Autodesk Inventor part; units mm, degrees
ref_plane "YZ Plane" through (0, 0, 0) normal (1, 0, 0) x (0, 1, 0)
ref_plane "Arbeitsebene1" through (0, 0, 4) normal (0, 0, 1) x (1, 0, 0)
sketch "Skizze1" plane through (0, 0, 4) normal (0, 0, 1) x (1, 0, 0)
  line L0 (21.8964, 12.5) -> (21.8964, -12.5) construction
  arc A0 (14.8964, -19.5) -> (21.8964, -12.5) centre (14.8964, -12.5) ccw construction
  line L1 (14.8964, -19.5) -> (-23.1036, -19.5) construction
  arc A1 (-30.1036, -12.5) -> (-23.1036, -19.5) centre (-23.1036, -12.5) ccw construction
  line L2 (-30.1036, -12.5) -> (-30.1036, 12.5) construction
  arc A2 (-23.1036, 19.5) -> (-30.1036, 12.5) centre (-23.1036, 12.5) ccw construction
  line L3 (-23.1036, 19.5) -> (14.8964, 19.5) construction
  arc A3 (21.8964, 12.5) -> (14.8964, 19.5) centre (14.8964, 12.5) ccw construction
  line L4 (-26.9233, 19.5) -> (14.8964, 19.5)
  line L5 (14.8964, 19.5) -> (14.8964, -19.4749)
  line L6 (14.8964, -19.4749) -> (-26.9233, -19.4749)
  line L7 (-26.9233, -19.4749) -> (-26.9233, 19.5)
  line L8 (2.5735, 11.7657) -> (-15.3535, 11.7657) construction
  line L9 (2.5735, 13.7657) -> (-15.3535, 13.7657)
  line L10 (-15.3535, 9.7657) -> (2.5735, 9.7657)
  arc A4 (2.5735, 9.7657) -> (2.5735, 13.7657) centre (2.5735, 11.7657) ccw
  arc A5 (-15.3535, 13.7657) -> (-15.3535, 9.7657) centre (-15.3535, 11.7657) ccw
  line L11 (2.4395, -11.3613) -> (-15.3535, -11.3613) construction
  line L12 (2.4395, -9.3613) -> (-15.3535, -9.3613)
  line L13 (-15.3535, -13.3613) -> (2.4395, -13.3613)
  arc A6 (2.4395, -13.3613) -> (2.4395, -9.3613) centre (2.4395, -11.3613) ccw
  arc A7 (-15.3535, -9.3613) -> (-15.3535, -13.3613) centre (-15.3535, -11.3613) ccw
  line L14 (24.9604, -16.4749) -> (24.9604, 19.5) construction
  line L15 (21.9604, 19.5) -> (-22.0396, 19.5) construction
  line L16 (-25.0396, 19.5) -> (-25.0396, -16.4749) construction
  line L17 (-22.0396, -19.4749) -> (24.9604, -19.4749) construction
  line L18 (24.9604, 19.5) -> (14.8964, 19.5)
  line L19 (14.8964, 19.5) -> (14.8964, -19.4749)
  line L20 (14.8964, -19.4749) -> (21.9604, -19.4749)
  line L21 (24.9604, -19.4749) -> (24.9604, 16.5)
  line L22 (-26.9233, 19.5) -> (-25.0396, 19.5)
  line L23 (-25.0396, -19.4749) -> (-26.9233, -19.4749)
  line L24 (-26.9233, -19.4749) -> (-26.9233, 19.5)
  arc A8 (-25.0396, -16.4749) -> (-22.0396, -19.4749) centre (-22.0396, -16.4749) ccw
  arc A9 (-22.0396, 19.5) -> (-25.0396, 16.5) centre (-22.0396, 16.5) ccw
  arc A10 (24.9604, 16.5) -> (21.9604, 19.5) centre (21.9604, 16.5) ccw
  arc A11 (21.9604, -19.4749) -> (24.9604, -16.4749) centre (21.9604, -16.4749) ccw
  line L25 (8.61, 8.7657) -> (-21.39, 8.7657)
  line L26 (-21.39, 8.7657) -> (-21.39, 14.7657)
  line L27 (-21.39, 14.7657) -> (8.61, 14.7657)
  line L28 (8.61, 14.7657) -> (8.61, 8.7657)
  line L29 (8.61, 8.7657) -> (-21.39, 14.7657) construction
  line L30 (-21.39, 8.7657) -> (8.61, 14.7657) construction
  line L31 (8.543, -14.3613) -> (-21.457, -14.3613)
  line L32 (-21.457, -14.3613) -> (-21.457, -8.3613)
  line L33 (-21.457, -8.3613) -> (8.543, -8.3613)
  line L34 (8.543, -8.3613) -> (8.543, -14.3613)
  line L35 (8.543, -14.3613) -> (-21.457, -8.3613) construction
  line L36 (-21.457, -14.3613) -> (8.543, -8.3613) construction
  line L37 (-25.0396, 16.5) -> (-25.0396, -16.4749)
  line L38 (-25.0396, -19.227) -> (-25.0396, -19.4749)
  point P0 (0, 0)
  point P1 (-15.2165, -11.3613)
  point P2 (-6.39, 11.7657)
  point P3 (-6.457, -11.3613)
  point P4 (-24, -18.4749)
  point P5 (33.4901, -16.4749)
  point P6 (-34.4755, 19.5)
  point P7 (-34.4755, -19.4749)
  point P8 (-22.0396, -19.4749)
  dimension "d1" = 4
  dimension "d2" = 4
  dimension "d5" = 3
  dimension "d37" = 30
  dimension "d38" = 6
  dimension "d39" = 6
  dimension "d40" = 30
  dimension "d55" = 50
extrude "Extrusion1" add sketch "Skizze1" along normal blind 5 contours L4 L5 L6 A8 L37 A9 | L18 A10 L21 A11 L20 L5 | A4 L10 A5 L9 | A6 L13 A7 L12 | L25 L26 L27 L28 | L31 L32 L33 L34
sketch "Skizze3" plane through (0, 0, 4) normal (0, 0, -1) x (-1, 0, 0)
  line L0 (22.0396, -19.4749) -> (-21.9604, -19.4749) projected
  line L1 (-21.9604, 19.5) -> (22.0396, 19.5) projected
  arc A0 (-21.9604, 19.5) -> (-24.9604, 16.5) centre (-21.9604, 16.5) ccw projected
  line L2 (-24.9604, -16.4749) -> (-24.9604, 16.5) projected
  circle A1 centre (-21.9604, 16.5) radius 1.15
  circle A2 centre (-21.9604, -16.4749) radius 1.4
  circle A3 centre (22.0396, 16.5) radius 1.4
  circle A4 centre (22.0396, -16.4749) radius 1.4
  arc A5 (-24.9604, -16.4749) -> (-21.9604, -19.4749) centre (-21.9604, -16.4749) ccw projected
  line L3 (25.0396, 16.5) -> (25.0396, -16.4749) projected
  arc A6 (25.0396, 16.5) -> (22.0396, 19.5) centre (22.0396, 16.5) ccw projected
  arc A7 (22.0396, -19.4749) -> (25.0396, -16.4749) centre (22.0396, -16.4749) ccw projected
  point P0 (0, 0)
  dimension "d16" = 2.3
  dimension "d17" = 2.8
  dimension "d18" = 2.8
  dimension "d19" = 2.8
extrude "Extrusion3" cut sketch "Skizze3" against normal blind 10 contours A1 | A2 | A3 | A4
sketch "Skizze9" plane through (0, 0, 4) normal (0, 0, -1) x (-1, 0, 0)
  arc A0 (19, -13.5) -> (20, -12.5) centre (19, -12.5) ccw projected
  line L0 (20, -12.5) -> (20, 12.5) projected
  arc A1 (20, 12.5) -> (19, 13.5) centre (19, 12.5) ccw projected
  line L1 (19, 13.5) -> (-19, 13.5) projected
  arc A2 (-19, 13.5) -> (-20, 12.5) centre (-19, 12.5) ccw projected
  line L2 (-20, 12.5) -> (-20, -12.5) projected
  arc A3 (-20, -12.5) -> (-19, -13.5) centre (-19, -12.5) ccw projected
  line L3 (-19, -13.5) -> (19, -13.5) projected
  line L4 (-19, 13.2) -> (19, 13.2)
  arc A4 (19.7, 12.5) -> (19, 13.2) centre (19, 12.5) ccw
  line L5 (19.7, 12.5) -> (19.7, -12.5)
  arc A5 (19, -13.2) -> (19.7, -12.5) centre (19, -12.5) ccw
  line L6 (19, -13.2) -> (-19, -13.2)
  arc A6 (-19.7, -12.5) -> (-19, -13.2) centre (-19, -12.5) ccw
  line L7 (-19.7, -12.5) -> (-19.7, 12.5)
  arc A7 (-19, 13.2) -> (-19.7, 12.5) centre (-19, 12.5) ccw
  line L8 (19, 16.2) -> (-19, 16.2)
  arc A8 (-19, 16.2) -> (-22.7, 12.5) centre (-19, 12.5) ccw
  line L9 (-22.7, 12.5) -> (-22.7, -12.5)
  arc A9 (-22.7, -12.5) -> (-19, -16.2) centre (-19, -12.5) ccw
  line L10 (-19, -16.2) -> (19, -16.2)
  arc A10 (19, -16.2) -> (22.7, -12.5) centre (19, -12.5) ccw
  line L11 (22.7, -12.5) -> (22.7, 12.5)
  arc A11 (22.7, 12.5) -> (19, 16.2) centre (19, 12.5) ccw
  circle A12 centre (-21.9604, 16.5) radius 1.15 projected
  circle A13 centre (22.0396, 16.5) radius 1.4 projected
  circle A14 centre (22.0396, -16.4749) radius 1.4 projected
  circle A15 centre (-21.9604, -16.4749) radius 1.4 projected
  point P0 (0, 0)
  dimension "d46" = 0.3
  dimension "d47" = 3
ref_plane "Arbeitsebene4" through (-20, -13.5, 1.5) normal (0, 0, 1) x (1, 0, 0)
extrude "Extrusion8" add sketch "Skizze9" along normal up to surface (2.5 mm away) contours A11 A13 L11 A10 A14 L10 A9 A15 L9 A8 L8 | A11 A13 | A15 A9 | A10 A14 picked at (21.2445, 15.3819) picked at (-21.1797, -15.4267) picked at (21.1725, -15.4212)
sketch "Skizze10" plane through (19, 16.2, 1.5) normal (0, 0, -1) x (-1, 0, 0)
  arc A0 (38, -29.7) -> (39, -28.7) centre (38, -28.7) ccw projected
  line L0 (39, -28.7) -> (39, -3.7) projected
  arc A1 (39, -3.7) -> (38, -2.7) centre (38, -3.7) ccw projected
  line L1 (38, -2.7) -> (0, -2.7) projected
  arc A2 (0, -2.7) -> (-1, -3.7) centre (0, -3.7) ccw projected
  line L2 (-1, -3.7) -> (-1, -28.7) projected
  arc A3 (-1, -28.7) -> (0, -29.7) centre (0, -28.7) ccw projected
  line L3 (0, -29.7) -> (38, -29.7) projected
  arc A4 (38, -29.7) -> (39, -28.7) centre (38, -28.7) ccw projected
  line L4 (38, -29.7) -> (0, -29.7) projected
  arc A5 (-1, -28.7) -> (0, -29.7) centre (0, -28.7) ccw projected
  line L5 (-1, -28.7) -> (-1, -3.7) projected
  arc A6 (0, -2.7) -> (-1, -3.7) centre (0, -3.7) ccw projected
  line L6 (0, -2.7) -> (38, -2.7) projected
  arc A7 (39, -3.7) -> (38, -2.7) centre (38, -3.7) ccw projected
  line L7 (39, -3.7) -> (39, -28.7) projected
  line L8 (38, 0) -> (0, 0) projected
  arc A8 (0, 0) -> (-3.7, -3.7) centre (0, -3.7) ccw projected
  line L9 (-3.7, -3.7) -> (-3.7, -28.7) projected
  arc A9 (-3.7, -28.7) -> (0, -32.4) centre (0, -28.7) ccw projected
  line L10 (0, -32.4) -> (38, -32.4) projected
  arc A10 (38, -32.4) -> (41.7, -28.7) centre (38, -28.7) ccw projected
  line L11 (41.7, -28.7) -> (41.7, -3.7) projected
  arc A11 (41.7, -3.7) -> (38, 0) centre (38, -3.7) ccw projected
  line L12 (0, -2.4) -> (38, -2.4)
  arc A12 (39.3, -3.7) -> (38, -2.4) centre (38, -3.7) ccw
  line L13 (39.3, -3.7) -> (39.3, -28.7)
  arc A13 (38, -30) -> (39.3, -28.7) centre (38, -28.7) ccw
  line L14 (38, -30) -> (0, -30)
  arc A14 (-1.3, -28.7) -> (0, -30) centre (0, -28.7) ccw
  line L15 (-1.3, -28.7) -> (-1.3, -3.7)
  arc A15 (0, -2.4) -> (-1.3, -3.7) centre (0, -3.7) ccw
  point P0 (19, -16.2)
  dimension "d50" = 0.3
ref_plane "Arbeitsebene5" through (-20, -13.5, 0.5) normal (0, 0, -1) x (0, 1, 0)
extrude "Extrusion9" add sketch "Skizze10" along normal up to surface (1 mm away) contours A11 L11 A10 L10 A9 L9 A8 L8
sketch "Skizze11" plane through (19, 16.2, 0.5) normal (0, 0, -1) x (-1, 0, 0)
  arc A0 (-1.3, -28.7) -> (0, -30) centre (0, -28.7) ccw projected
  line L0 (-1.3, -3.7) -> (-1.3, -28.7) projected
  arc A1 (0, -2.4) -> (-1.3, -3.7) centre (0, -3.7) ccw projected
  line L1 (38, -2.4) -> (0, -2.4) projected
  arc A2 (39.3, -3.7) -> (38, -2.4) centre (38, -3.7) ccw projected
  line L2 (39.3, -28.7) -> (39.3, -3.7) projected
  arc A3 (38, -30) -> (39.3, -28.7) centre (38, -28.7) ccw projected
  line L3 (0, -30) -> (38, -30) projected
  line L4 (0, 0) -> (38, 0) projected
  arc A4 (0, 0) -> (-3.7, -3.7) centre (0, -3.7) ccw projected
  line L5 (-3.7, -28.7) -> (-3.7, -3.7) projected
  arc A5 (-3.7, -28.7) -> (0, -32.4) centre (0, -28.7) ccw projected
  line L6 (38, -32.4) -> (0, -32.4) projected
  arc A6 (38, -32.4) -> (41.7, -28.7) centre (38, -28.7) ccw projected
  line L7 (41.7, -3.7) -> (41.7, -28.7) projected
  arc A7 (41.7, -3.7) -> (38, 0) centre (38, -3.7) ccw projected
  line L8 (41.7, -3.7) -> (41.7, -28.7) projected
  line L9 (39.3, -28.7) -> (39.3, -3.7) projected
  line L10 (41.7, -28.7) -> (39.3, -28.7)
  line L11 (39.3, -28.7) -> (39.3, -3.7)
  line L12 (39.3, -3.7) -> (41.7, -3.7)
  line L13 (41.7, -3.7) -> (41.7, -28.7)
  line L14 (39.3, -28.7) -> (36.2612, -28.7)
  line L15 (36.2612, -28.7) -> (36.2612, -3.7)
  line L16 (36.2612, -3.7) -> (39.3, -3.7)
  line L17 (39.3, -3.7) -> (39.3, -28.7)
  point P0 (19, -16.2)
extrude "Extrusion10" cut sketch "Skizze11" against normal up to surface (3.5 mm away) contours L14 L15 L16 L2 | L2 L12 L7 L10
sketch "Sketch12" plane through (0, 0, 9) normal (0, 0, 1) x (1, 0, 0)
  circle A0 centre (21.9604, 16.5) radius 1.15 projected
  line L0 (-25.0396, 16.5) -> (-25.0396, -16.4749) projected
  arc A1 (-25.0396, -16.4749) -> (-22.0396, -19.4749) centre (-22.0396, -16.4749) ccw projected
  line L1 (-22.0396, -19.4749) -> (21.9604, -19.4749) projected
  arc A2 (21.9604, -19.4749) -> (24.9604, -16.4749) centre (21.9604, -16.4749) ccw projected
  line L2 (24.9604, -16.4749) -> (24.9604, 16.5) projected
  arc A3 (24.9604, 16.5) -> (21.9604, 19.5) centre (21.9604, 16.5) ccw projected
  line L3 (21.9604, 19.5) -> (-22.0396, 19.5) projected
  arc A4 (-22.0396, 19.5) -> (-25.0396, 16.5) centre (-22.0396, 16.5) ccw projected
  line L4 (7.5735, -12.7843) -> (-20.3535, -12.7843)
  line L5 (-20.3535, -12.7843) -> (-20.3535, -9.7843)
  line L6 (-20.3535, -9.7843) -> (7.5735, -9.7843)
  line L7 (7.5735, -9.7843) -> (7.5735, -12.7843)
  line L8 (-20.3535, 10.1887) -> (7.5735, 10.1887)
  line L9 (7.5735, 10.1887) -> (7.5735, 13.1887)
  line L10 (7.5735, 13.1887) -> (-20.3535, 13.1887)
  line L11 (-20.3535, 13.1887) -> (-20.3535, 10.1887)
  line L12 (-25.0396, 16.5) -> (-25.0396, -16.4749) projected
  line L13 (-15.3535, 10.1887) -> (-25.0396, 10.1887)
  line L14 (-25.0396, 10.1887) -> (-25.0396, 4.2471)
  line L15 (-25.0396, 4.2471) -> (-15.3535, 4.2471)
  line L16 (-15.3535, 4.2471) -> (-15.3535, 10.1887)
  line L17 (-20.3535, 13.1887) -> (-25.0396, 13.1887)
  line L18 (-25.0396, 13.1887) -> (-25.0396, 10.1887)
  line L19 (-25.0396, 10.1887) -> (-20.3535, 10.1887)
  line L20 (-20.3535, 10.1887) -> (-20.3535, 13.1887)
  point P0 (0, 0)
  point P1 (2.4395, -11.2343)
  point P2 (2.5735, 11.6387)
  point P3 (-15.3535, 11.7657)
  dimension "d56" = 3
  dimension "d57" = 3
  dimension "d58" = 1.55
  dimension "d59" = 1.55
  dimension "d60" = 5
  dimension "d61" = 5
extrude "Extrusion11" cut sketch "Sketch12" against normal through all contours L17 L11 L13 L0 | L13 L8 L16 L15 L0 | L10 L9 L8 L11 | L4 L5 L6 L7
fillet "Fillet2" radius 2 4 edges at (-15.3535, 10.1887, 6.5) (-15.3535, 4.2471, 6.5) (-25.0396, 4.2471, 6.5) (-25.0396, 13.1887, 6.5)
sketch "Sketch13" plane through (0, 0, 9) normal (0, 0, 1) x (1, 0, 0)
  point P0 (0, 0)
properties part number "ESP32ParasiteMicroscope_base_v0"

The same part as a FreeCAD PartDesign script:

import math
import FreeCAD as App
import Part
import Sketcher
Q = App.Units.Quantity


def edges_at(feature, points):
    """Names of the edges that pass closest to the given points."""
    edges = feature.Shape.Edges
    near = lambda p: min(range(len(edges)), key=lambda i: edges[i].distToShape(Part.Vertex(*p))[0])
    return sorted({f"Edge{near(p) + 1}" for p in points})

doc = App.newDocument("Part")
params = doc.addObject("Spreadsheet::Sheet", "Params")
for row, (alias, value) in enumerate([
    ("sketch1_radius", "3 mm"),
    ("sketch1_width", "44 mm"),
    ("pad1_length", "5 mm"),
    ("sketch2_diameter", "2.3 mm"),
    ("sketch2_diameter2", "2.8 mm"),
    ("pocket1_length", "10 mm"),
    ("sketch3_radius", "1 mm"),
    ("sketch3_radius2", "3.7 mm"),
    ("sketch3_width", "38 mm"),
    ("sketch3_height", "25 mm"),
    ("pad2_length", "2.5 mm"),
    ("sketch4_radius", "3.7 mm"),
    ("sketch4_radius2", "1.3 mm"),
    ("sketch4_width", "38 mm"),
    ("sketch4_height", "25 mm"),
    ("pad3_length", "1 mm"),
    ("sketch5_height", "25 mm"),
    ("pocket2_length", "3.5 mm"),
    ("sketch6_height", "3 mm"),
    ("fillet_radius", "2 mm"),
], start=1):
    params.set(f"A{row}", alias)
    params.set(f"B{row}", "=" + value)
    params.setAlias(f"B{row}", alias)

body = doc.addObject("PartDesign::Body", "Body")

# Sketch on XY plane
sketch1 = body.newObject("Sketcher::SketchObject", "Sketch")
sketch1.AttachmentSupport = (doc.getObject("XY_Plane"), [""])
sketch1.MapMode = "FlatFace"
sketch1.AttachmentOffset = App.Placement(App.Vector(0, 0, 4), App.Rotation())
sketch1.addGeometry(Part.ArcOfCircle(Part.Circle(App.Vector(-22, 16.5, 0), App.Vector(0, 0, 1), 3), math.radians(90), math.radians(180)), False)
sketch1.addGeometry(Part.LineSegment(App.Vector(-25, 16.5, 0), App.Vector(-25, -16.5, 0)), False)
sketch1.addGeometry(Part.ArcOfCircle(Part.Circle(App.Vector(-22, -16.5, 0), App.Vector(0, 0, 1), 3), math.radians(180), math.radians(270)), False)
sketch1.addGeometry(Part.LineSegment(App.Vector(-22, -19.5, 0), App.Vector(22, -19.5, 0)), False)
sketch1.addGeometry(Part.ArcOfCircle(Part.Circle(App.Vector(22, -16.5, 0), App.Vector(0, 0, 1), 3), math.radians(-90), math.radians(0)), False)
sketch1.addGeometry(Part.LineSegment(App.Vector(25, -16.5, 0), App.Vector(25, 16.5, 0)), False)
sketch1.addGeometry(Part.ArcOfCircle(Part.Circle(App.Vector(22, 16.5, 0), App.Vector(0, 0, 1), 3), math.radians(0), math.radians(90)), False)
sketch1.addGeometry(Part.LineSegment(App.Vector(22, 19.5, 0), App.Vector(-22, 19.5, 0)), False)
sketch1.addConstraint(Sketcher.Constraint("Tangent", 0, 2, 1, 1))
sketch1.addConstraint(Sketcher.Constraint("Tangent", 1, 2, 2, 1))
sketch1.addConstraint(Sketcher.Constraint("Tangent", 2, 2, 3, 1))
sketch1.addConstraint(Sketcher.Constraint("Tangent", 3, 2, 4, 1))
sketch1.addConstraint(Sketcher.Constraint("Tangent", 4, 2, 5, 1))
sketch1.addConstraint(Sketcher.Constraint("Tangent", 5, 2, 6, 1))
sketch1.addConstraint(Sketcher.Constraint("Tangent", 6, 2, 7, 1))
sketch1.addConstraint(Sketcher.Constraint("Tangent", 7, 2, 0, 1))
sketch1.addConstraint(Sketcher.Constraint("Vertical", 1))
sketch1.addConstraint(Sketcher.Constraint("Horizontal", 3))
sketch1.addConstraint(Sketcher.Constraint("Vertical", 5))
sketch1.addConstraint(Sketcher.Constraint("Horizontal", 7))
sketch1.addConstraint(Sketcher.Constraint("Equal", 0, 2))
sketch1.addConstraint(Sketcher.Constraint("Equal", 2, 4))
sketch1.addConstraint(Sketcher.Constraint("Equal", 4, 6))
sketch1.addConstraint(Sketcher.Constraint("Radius", 0, Q("3 mm")))
sketch1.addConstraint(Sketcher.Constraint("DistanceX", 3, 1, 3, 2, Q("44 mm")))
sketch1.addConstraint(Sketcher.Constraint("DistanceY", -1, 1, 0, 3, Q("16.5 mm")))
sketch1.addConstraint(Sketcher.Constraint("DistanceY", 1, 2, 1, 1, Q("32.975 mm")))
sketch1.addConstraint(Sketcher.Constraint("DistanceX", 0, 3, -1, 1, Q("22.0396 mm")))
sketch1.setExpression("Constraints[15]", "Params.sketch1_radius")
sketch1.setExpression("Constraints[16]", "Params.sketch1_width")
pad1 = body.newObject("PartDesign::Pad", "Pad")
pad1.Profile = sketch1
pad1.setExpression("Length", "Params.pad1_length")

# Sketch on XY plane
sketch2 = body.newObject("Sketcher::SketchObject", "Sketch001")
sketch2.AttachmentSupport = (doc.getObject("XY_Plane"), [""])
sketch2.MapMode = "FlatFace"
sketch2.AttachmentOffset = App.Placement(App.Vector(0, 0, 4), App.Rotation())
sketch2.addGeometry(Part.Circle(App.Vector(22, 16.5, 0), App.Vector(0, 0, 1), 1.1), False)
sketch2.addGeometry(Part.Circle(App.Vector(22, -16.5, 0), App.Vector(0, 0, 1), 1.4), False)
sketch2.addGeometry(Part.Circle(App.Vector(-22, 16.5, 0), App.Vector(0, 0, 1), 1.4), False)
sketch2.addGeometry(Part.Circle(App.Vector(-22, -16.5, 0), App.Vector(0, 0, 1), 1.4), False)
sketch2.addConstraint(Sketcher.Constraint("Equal", 1, 2))
sketch2.addConstraint(Sketcher.Constraint("Equal", 2, 3))
sketch2.addConstraint(Sketcher.Constraint("Horizontal", 0, 3, 2, 3))
sketch2.addConstraint(Sketcher.Constraint("Horizontal", 1, 3, 3, 3))
sketch2.addConstraint(Sketcher.Constraint("Vertical", 0, 3, 1, 3))
sketch2.addConstraint(Sketcher.Constraint("Vertical", 2, 3, 3, 3))
sketch2.addConstraint(Sketcher.Constraint("Diameter", 0, Q("2.3 mm")))
sketch2.addConstraint(Sketcher.Constraint("Diameter", 1, Q("2.8 mm")))
sketch2.addConstraint(Sketcher.Constraint("DistanceX", 2, 3, 0, 3, Q("44 mm")))
sketch2.addConstraint(Sketcher.Constraint("DistanceY", -1, 1, 0, 3, Q("16.5 mm")))
sketch2.addConstraint(Sketcher.Constraint("DistanceY", 1, 3, -1, 1, Q("16.475 mm")))
sketch2.addConstraint(Sketcher.Constraint("DistanceX", -1, 1, 0, 3, Q("21.9604 mm")))
sketch2.setExpression("Constraints[6]", "Params.sketch2_diameter")
sketch2.setExpression("Constraints[7]", "Params.sketch2_diameter2")
pocket1 = body.newObject("PartDesign::Pocket", "Pocket")
pocket1.Profile = sketch2
pocket1.setExpression("Length", "Params.pocket1_length")
pocket1.Reversed = True

# Sketch on XY plane
sketch3 = body.newObject("Sketcher::SketchObject", "Sketch002")
sketch3.AttachmentSupport = (doc.getObject("XY_Plane"), [""])
sketch3.MapMode = "FlatFace"
sketch3.AttachmentOffset = App.Placement(App.Vector(0, 0, 4), App.Rotation())
sketch3.addGeometry(Part.LineSegment(App.Vector(-19, 16.2, 0), App.Vector(19, 16.2, 0)), False)
sketch3.addGeometry(Part.ArcOfCircle(Part.Circle(App.Vector(19, 12.5, 0), App.Vector(0, 0, 1), 3.7), math.radians(0), math.radians(90)), False)
sketch3.addGeometry(Part.LineSegment(App.Vector(22.7, 12.5, 0), App.Vector(22.7, -12.5, 0)), False)
sketch3.addGeometry(Part.ArcOfCircle(Part.Circle(App.Vector(19, -12.5, 0), App.Vector(0, 0, 1), 3.7), math.radians(-90), math.radians(0)), False)
sketch3.addGeometry(Part.LineSegment(App.Vector(19, -16.2, 0), App.Vector(-19, -16.2, 0)), False)
sketch3.addGeometry(Part.ArcOfCircle(Part.Circle(App.Vector(-19, -12.5, 0), App.Vector(0, 0, 1), 3.7), math.radians(180), math.radians(270)), False)
sketch3.addGeometry(Part.LineSegment(App.Vector(-22.7, -12.5, 0), App.Vector(-22.7, 12.5, 0)), False)
sketch3.addGeometry(Part.ArcOfCircle(Part.Circle(App.Vector(-19, 12.5, 0), App.Vector(0, 0, 1), 3.7), math.radians(90), math.radians(180)), False)
sketch3.addGeometry(Part.ArcOfCircle(Part.Circle(App.Vector(-19, -12.5, 0), App.Vector(0, 0, 1), 1), math.radians(180), math.radians(270)), False)
sketch3.addGeometry(Part.LineSegment(App.Vector(-19, -13.5, 0), App.Vector(19, -13.5, 0)), False)
sketch3.addGeometry(Part.ArcOfCircle(Part.Circle(App.Vector(19, -12.5, 0), App.Vector(0, 0, 1), 1), math.radians(-90), math.radians(0)), False)
sketch3.addGeometry(Part.LineSegment(App.Vector(20, -12.5, 0), App.Vector(20, 12.5, 0)), False)
sketch3.addGeometry(Part.ArcOfCircle(Part.Circle(App.Vector(19, 12.5, 0), App.Vector(0, 0, 1), 1), math.radians(0), math.radians(90)), False)
sketch3.addGeometry(Part.LineSegment(App.Vector(19, 13.5, 0), App.Vector(-19, 13.5, 0)), False)
sketch3.addGeometry(Part.ArcOfCircle(Part.Circle(App.Vector(-19, 12.5, 0), App.Vector(0, 0, 1), 1), math.radians(90), math.radians(180)), False)
sketch3.addGeometry(Part.LineSegment(App.Vector(-20, 12.5, 0), App.Vector(-20, -12.5, 0)), False)
sketch3.addConstraint(Sketcher.Constraint("Tangent", 0, 2, 1, 2))
sketch3.addConstraint(Sketcher.Constraint("Tangent", 1, 1, 2, 1))
sketch3.addConstraint(Sketcher.Constraint("Tangent", 2, 2, 3, 2))
sketch3.addConstraint(Sketcher.Constraint("Tangent", 3, 1, 4, 1))
sketch3.addConstraint(Sketcher.Constraint("Tangent", 4, 2, 5, 2))
sketch3.addConstraint(Sketcher.Constraint("Tangent", 5, 1, 6, 1))
sketch3.addConstraint(Sketcher.Constraint("Tangent", 6, 2, 7, 2))
sketch3.addConstraint(Sketcher.Constraint("Tangent", 7, 1, 0, 1))
sketch3.addConstraint(Sketcher.Constraint("Tangent", 8, 2, 9, 1))
sketch3.addConstraint(Sketcher.Constraint("Tangent", 9, 2, 10, 1))
sketch3.addConstraint(Sketcher.Constraint("Tangent", 10, 2, 11, 1))
sketch3.addConstraint(Sketcher.Constraint("Tangent", 11, 2, 12, 1))
sketch3.addConstraint(Sketcher.Constraint("Tangent", 12, 2, 13, 1))
sketch3.addConstraint(Sketcher.Constraint("Tangent", 13, 2, 14, 1))
sketch3.addConstraint(Sketcher.Constraint("Tangent", 14, 2, 15, 1))
sketch3.addConstraint(Sketcher.Constraint("Tangent", 15, 2, 8, 1))
sketch3.addConstraint(Sketcher.Constraint("Horizontal", 0))
sketch3.addConstraint(Sketcher.Constraint("Vertical", 2))
sketch3.addConstraint(Sketcher.Constraint("Horizontal", 4))
sketch3.addConstraint(Sketcher.Constraint("Vertical", 6))
sketch3.addConstraint(Sketcher.Constraint("Horizontal", 9))
sketch3.addConstraint(Sketcher.Constraint("Vertical", 11))
sketch3.addConstraint(Sketcher.Constraint("Horizontal", 13))
sketch3.addConstraint(Sketcher.Constraint("Vertical", 15))
sketch3.addConstraint(Sketcher.Constraint("Coincident", 8, 3, 5, 3))
sketch3.addConstraint(Sketcher.Constraint("Coincident", 10, 3, 3, 3))
sketch3.addConstraint(Sketcher.Constraint("Coincident", 12, 3, 1, 3))
sketch3.addConstraint(Sketcher.Constraint("Equal", 1, 3))
sketch3.addConstraint(Sketcher.Constraint("Equal", 3, 5))
sketch3.addConstraint(Sketcher.Constraint("Equal", 5, 7))
sketch3.addConstraint(Sketcher.Constraint("Equal", 12, 14))
sketch3.addConstraint(Sketcher.Constraint("Symmetric", 1, 3, 5, 3, -1, 1))
sketch3.addConstraint(Sketcher.Constraint("Radius", 8, Q("1 mm")))
sketch3.addConstraint(Sketcher.Constraint("Radius", 1, Q("3.7 mm")))
sketch3.addConstraint(Sketcher.Constraint("DistanceX", 0, 1, 0, 2, Q("38 mm")))
sketch3.addConstraint(Sketcher.Constraint("DistanceY", 2, 2, 2, 1, Q("25 mm")))
sketch3.setExpression("Constraints[32]", "Params.sketch3_radius")
sketch3.setExpression("Constraints[33]", "Params.sketch3_radius2")
sketch3.setExpression("Constraints[34]", "Params.sketch3_width")
sketch3.setExpression("Constraints[35]", "Params.sketch3_height")
pad2 = body.newObject("PartDesign::Pad", "Pad001")
pad2.Profile = sketch3
pad2.setExpression("Length", "Params.pad2_length")
pad2.Reversed = True

# Sketch on XY plane
sketch4 = body.newObject("Sketcher::SketchObject", "Sketch003")
sketch4.AttachmentSupport = (doc.getObject("XY_Plane"), [""])
sketch4.MapMode = "FlatFace"
sketch4.AttachmentOffset = App.Placement(App.Vector(0, 0, 1.5), App.Rotation())
sketch4.addGeometry(Part.ArcOfCircle(Part.Circle(App.Vector(-19, 12.5, 0), App.Vector(0, 0, 1), 3.7), math.radians(90), math.radians(180)), False)
sketch4.addGeometry(Part.LineSegment(App.Vector(-19, 16.2, 0), App.Vector(19, 16.2, 0)), False)
sketch4.addGeometry(Part.ArcOfCircle(Part.Circle(App.Vector(19, 12.5, 0), App.Vector(0, 0, 1), 3.7), math.radians(0), math.radians(90)), False)
sketch4.addGeometry(Part.LineSegment(App.Vector(22.7, 12.5, 0), App.Vector(22.7, -12.5, 0)), False)
sketch4.addGeometry(Part.ArcOfCircle(Part.Circle(App.Vector(19, -12.5, 0), App.Vector(0, 0, 1), 3.7), math.radians(-90), math.radians(0)), False)
sketch4.addGeometry(Part.LineSegment(App.Vector(19, -16.2, 0), App.Vector(-19, -16.2, 0)), False)
sketch4.addGeometry(Part.ArcOfCircle(Part.Circle(App.Vector(-19, -12.5, 0), App.Vector(0, 0, 1), 3.7), math.radians(180), math.radians(270)), False)
sketch4.addGeometry(Part.LineSegment(App.Vector(-22.7, -12.5, 0), App.Vector(-22.7, 12.5, 0)), False)
sketch4.addGeometry(Part.ArcOfCircle(Part.Circle(App.Vector(19, 12.5, 0), App.Vector(0, 0, 1), 1.3), math.radians(0), math.radians(90)), False)
sketch4.addGeometry(Part.LineSegment(App.Vector(19, 13.8, 0), App.Vector(-19, 13.8, 0)), False)
sketch4.addGeometry(Part.ArcOfCircle(Part.Circle(App.Vector(-19, 12.5, 0), App.Vector(0, 0, 1), 1.3), math.radians(90), math.radians(180)), False)
sketch4.addGeometry(Part.LineSegment(App.Vector(-20.3, 12.5, 0), App.Vector(-20.3, -12.5, 0)), False)
sketch4.addGeometry(Part.ArcOfCircle(Part.Circle(App.Vector(-19, -12.5, 0), App.Vector(0, 0, 1), 1.3), math.radians(180), math.radians(270)), False)
sketch4.addGeometry(Part.LineSegment(App.Vector(-19, -13.8, 0), App.Vector(19, -13.8, 0)), False)
sketch4.addGeometry(Part.ArcOfCircle(Part.Circle(App.Vector(19, -12.5, 0), App.Vector(0, 0, 1), 1.3), math.radians(-90), math.radians(0)), False)
sketch4.addGeometry(Part.LineSegment(App.Vector(20.3, -12.5, 0), App.Vector(20.3, 12.5, 0)), False)
sketch4.addConstraint(Sketcher.Constraint("Tangent", 0, 1, 1, 1))
sketch4.addConstraint(Sketcher.Constraint("Tangent", 1, 2, 2, 2))
sketch4.addConstraint(Sketcher.Constraint("Tangent", 2, 1, 3, 1))
sketch4.addConstraint(Sketcher.Constraint("Tangent", 3, 2, 4, 2))
sketch4.addConstraint(Sketcher.Constraint("Tangent", 4, 1, 5, 1))
sketch4.addConstraint(Sketcher.Constraint("Tangent", 5, 2, 6, 2))
sketch4.addConstraint(Sketcher.Constraint("Tangent", 6, 1, 7, 1))
sketch4.addConstraint(Sketcher.Constraint("Tangent", 7, 2, 0, 2))
sketch4.addConstraint(Sketcher.Constraint("Tangent", 8, 2, 9, 1))
sketch4.addConstraint(Sketcher.Constraint("Tangent", 9, 2, 10, 1))
sketch4.addConstraint(Sketcher.Constraint("Tangent", 10, 2, 11, 1))
sketch4.addConstraint(Sketcher.Constraint("Tangent", 11, 2, 12, 1))
sketch4.addConstraint(Sketcher.Constraint("Tangent", 12, 2, 13, 1))
sketch4.addConstraint(Sketcher.Constraint("Tangent", 13, 2, 14, 1))
sketch4.addConstraint(Sketcher.Constraint("Tangent", 14, 2, 15, 1))
sketch4.addConstraint(Sketcher.Constraint("Tangent", 15, 2, 8, 1))
sketch4.addConstraint(Sketcher.Constraint("Horizontal", 1))
sketch4.addConstraint(Sketcher.Constraint("Vertical", 3))
sketch4.addConstraint(Sketcher.Constraint("Horizontal", 5))
sketch4.addConstraint(Sketcher.Constraint("Vertical", 7))
sketch4.addConstraint(Sketcher.Constraint("Horizontal", 9))
sketch4.addConstraint(Sketcher.Constraint("Vertical", 11))
sketch4.addConstraint(Sketcher.Constraint("Horizontal", 13))
sketch4.addConstraint(Sketcher.Constraint("Vertical", 15))
sketch4.addConstraint(Sketcher.Constraint("Coincident", 8, 3, 2, 3))
sketch4.addConstraint(Sketcher.Constraint("Coincident", 10, 3, 0, 3))
sketch4.addConstraint(Sketcher.Constraint("Coincident", 12, 3, 6, 3))
sketch4.addConstraint(Sketcher.Constraint("Equal", 0, 2))
sketch4.addConstraint(Sketcher.Constraint("Equal", 2, 4))
sketch4.addConstraint(Sketcher.Constraint("Equal", 4, 6))
sketch4.addConstraint(Sketcher.Constraint("Equal", 12, 14))
sketch4.addConstraint(Sketcher.Constraint("Symmetric", 0, 3, 4, 3, -1, 1))
sketch4.addConstraint(Sketcher.Constraint("Radius", 0, Q("3.7 mm")))
sketch4.addConstraint(Sketcher.Constraint("Radius", 8, Q("1.3 mm")))
sketch4.addConstraint(Sketcher.Constraint("DistanceX", 1, 1, 1, 2, Q("38 mm")))
sketch4.addConstraint(Sketcher.Constraint("DistanceY", 3, 2, 3, 1, Q("25 mm")))
sketch4.setExpression("Constraints[32]", "Params.sketch4_radius")
sketch4.setExpression("Constraints[33]", "Params.sketch4_radius2")
sketch4.setExpression("Constraints[34]", "Params.sketch4_width")
sketch4.setExpression("Constraints[35]", "Params.sketch4_height")
pad3 = body.newObject("PartDesign::Pad", "Pad002")
pad3.Profile = sketch4
pad3.setExpression("Length", "Params.pad3_length")
pad3.Reversed = True

# Sketch on XY plane
sketch5 = body.newObject("Sketcher::SketchObject", "Sketch004")
sketch5.AttachmentSupport = (doc.getObject("XY_Plane"), [""])
sketch5.MapMode = "FlatFace"
sketch5.AttachmentOffset = App.Placement(App.Vector(0, 0, 0.5), App.Rotation())
sketch5.addGeometry(Part.LineSegment(App.Vector(-17, -12, 0), App.Vector(-23, -12, 0)), False)
sketch5.addGeometry(Part.LineSegment(App.Vector(-23, -12, 0), App.Vector(-23, 12, 0)), False)
sketch5.addGeometry(Part.LineSegment(App.Vector(-23, 12, 0), App.Vector(-17, 12, 0)), False)
sketch5.addGeometry(Part.LineSegment(App.Vector(-17, 12, 0), App.Vector(-17, -12, 0)), False)
sketch5.addConstraint(Sketcher.Constraint("Coincident", 0, 2, 1, 1))
sketch5.addConstraint(Sketcher.Constraint("Coincident", 1, 2, 2, 1))
sketch5.addConstraint(Sketcher.Constraint("Coincident", 2, 2, 3, 1))
sketch5.addConstraint(Sketcher.Constraint("Coincident", 3, 2, 0, 1))
sketch5.addConstraint(Sketcher.Constraint("Horizontal", 0))
sketch5.addConstraint(Sketcher.Constraint("Vertical", 1))
sketch5.addConstraint(Sketcher.Constraint("Horizontal", 2))
sketch5.addConstraint(Sketcher.Constraint("Vertical", 3))
sketch5.addConstraint(Sketcher.Constraint("DistanceY", 1, 1, 1, 2, Q("25 mm")))
sketch5.addConstraint(Sketcher.Constraint("DistanceX", 0, 2, -1, 1, Q("22.7 mm")))
sketch5.addConstraint(Sketcher.Constraint("DistanceY", 0, 2, -1, 1, Q("12.5 mm")))
sketch5.addConstraint(Sketcher.Constraint("DistanceX", 0, 2, 0, 1, Q("5.4388 mm")))
sketch5.setExpression("Constraints[8]", "Params.sketch5_height")
pocket2 = body.newObject("PartDesign::Pocket", "Pocket001")
pocket2.Profile = sketch5
pocket2.setExpression("Length", "Params.pocket2_length")
pocket2.Reversed = True

# Sketch on XY plane
sketch6 = body.newObject("Sketcher::SketchObject", "Sketch005")
sketch6.AttachmentSupport = (doc.getObject("XY_Plane"), [""])
sketch6.MapMode = "FlatFace"
sketch6.AttachmentOffset = App.Placement(App.Vector(0, 0, 9), App.Rotation())
sketch6.addGeometry(Part.LineSegment(App.Vector(-25, 13.2, 0), App.Vector(-25, 4.2, 0)), False)
sketch6.addGeometry(Part.LineSegment(App.Vector(-25, 4.2, 0), App.Vector(-15.4, 4.2, 0)), False)
sketch6.addGeometry(Part.LineSegment(App.Vector(-15.4, 4.2, 0), App.Vector(-15.4, 10.2, 0)), False)
sketch6.addGeometry(Part.LineSegment(App.Vector(-15.4, 10.2, 0), App.Vector(7.6, 10.2, 0)), False)
sketch6.addGeometry(Part.LineSegment(App.Vector(7.6, 10.2, 0), App.Vector(7.6, 13.2, 0)), False)
sketch6.addGeometry(Part.LineSegment(App.Vector(7.6, 13.2, 0), App.Vector(-25, 13.2, 0)), False)
sketch6.addGeometry(Part.LineSegment(App.Vector(-20.4, -12.8, 0), App.Vector(7.6, -12.8, 0)), False)
sketch6.addGeometry(Part.LineSegment(App.Vector(7.6, -12.8, 0), App.Vector(7.6, -9.8, 0)), False)
sketch6.addGeometry(Part.LineSegment(App.Vector(7.6, -9.8, 0), App.Vector(-20.4, -9.8, 0)), False)
sketch6.addGeometry(Part.LineSegment(App.Vector(-20.4, -9.8, 0), App.Vector(-20.4, -12.8, 0)), False)
sketch6.addConstraint(Sketcher.Constraint("Coincident", 0, 2, 1, 1))
sketch6.addConstraint(Sketcher.Constraint("Coincident", 1, 2, 2, 1))
sketch6.addConstraint(Sketcher.Constraint("Coincident", 2, 2, 3, 1))
sketch6.addConstraint(Sketcher.Constraint("Coincident", 3, 2, 4, 1))
sketch6.addConstraint(Sketcher.Constraint("Coincident", 4, 2, 5, 1))
sketch6.addConstraint(Sketcher.Constraint("Coincident", 5, 2, 0, 1))
sketch6.addConstraint(Sketcher.Constraint("Coincident", 6, 2, 7, 1))
sketch6.addConstraint(Sketcher.Constraint("Coincident", 7, 2, 8, 1))
sketch6.addConstraint(Sketcher.Constraint("Coincident", 8, 2, 9, 1))
sketch6.addConstraint(Sketcher.Constraint("Coincident", 9, 2, 6, 1))
sketch6.addConstraint(Sketcher.Constraint("Vertical", 0))
sketch6.addConstraint(Sketcher.Constraint("Horizontal", 1))
sketch6.addConstraint(Sketcher.Constraint("Vertical", 2))
sketch6.addConstraint(Sketcher.Constraint("Horizontal", 3))
sketch6.addConstraint(Sketcher.Constraint("Vertical", 4))
sketch6.addConstraint(Sketcher.Constraint("Horizontal", 5))
sketch6.addConstraint(Sketcher.Constraint("Horizontal", 6))
sketch6.addConstraint(Sketcher.Constraint("Vertical", 7))
sketch6.addConstraint(Sketcher.Constraint("Horizontal", 8))
sketch6.addConstraint(Sketcher.Constraint("Vertical", 9))
sketch6.addConstraint(Sketcher.Constraint("Vertical", 4, 2, 6, 2))
sketch6.addConstraint(Sketcher.Constraint("Equal", 4, 7))
sketch6.addConstraint(Sketcher.Constraint("DistanceY", 4, 1, 4, 2, Q("3 mm")))
sketch6.addConstraint(Sketcher.Constraint("DistanceX", 8, 2, 1, 2, Q("5 mm")))
sketch6.addConstraint(Sketcher.Constraint("DistanceX", 1, 1, 1, 2, Q("9.686 mm")))
sketch6.addConstraint(Sketcher.Constraint("DistanceX", 3, 1, 3, 2, Q("22.927 mm")))
sketch6.addConstraint(Sketcher.Constraint("DistanceY", 0, 2, 0, 1, Q("8.9416 mm")))
sketch6.addConstraint(Sketcher.Constraint("DistanceY", -1, 1, 0, 2, Q("4.247 mm")))
sketch6.addConstraint(Sketcher.Constraint("DistanceY", 6, 2, 3, 2, Q("22.973 mm")))
sketch6.addConstraint(Sketcher.Constraint("DistanceX", 0, 2, -1, 1, Q("25.0396 mm")))
sketch6.setExpression("Constraints[22]", "Params.sketch6_height")
pocket3 = body.newObject("PartDesign::Pocket", "Pocket002")
pocket3.Profile = sketch6
pocket3.Type = "ThroughAll"
doc.recompute()

fillet = body.newObject("PartDesign::Fillet", "Fillet")
fillet.Base = (pocket3, edges_at(pocket3, [
    (-15.354, 10.189, 6.5),
    (-15.354, 4.247, 6.5),
    (-25.04, 4.247, 6.5),
    (-25.04, 13.189, 6.5),
]))
fillet.setExpression("Radius", "Params.fillet_radius")

doc.recompute()
